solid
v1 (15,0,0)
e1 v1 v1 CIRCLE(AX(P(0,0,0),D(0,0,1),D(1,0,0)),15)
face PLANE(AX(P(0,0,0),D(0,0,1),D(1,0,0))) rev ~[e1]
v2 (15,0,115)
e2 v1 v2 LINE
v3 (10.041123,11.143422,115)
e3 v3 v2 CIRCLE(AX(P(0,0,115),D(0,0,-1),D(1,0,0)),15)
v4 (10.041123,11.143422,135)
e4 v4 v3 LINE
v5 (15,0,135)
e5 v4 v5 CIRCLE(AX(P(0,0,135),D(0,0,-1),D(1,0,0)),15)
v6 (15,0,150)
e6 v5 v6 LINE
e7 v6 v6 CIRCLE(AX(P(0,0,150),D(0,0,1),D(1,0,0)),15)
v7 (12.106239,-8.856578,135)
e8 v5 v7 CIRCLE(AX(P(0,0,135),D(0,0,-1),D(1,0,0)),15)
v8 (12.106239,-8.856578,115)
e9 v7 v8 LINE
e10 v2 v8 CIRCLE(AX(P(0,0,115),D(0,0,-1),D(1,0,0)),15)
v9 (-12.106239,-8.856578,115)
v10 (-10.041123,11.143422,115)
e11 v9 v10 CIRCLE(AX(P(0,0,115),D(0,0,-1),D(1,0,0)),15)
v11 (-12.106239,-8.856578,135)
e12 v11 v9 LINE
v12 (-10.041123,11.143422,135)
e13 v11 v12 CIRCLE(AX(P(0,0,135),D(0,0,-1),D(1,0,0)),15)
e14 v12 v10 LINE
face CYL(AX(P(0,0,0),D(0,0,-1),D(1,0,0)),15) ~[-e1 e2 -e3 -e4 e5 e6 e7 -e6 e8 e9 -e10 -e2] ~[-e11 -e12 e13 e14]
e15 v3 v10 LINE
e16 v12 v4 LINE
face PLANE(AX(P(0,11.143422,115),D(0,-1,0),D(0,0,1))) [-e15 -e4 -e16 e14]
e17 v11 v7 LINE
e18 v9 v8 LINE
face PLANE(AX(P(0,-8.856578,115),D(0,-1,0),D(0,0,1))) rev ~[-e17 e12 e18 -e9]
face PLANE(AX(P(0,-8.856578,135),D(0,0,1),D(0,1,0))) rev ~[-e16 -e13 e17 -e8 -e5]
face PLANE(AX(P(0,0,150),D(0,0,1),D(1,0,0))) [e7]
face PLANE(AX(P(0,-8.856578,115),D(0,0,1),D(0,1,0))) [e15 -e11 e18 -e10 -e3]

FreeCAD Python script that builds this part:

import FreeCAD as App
import Part
import Sketcher

V = App.Vector
Q = App.Units.Quantity

doc = App.newDocument("Part")
params = doc.addObject("Spreadsheet::Sheet", "Params")
for row, (alias, value) in enumerate([
    ("sketch1_diameter", "30 mm"),
    ("pad1_length", "150 mm"),
    ("sketch2_width", "20 mm"),
    ("pocket1_length", "25 mm"),
    ("sketch3_width", "20 mm"),
    ("pocket2_length", "25 mm"),
], start=1):
    params.set(f"A{row}", alias)
    params.set(f"B{row}", "=" + value)
    params.setAlias(f"B{row}", alias)

body = doc.addObject("PartDesign::Body", "Body")

# Sketch on XY plane
sketch1 = doc.addObject("Sketcher::SketchObject", "Sketch")
body.addObject(sketch1)
sketch1.AttachmentSupport = (doc.XY_Plane, [""])
sketch1.MapMode = "FlatFace"
sketch1.addGeometry(Part.Circle(V(0, 0, 0), V(0, 0, 1), 15), False)
sketch1.addConstraint([
    Sketcher.Constraint("Coincident", 0, 3, -1, 1),
    Sketcher.Constraint("Diameter", 0, Q("30 mm")),
])
sketch1.setExpression("Constraints[1]", "Params.sketch1_diameter")
pad1 = doc.addObject("PartDesign::Pad", "Pad")
body.addObject(pad1)
pad1.Profile = sketch1
pad1.setExpression("Length", "Params.pad1_length")

# Sketch on YZ plane
sketch2 = doc.addObject("Sketcher::SketchObject", "Sketch001")
body.addObject(sketch2)
sketch2.AttachmentSupport = (doc.YZ_Plane, [""])
sketch2.MapMode = "FlatFace"
sketch2.addGeometry([
    Part.LineSegment(V(-9, 135, 0), V(-9, 115, 0)),
    Part.LineSegment(V(-9, 115, 0), V(11, 115, 0)),
    Part.LineSegment(V(11, 115, 0), V(11, 135, 0)),
    Part.LineSegment(V(11, 135, 0), V(-9, 135, 0)),
], False)
sketch2.addConstraint([
    Sketcher.Constraint("Coincident", 0, 2, 1, 1),
    Sketcher.Constraint("Coincident", 1, 2, 2, 1),
    Sketcher.Constraint("Coincident", 2, 2, 3, 1),
    Sketcher.Constraint("Coincident", 3, 2, 0, 1),
    Sketcher.Constraint("Vertical", 0),
    Sketcher.Constraint("Horizontal", 1),
    Sketcher.Constraint("Vertical", 2),
    Sketcher.Constraint("Horizontal", 3),
    Sketcher.Constraint("Equal", 3, 0),
    Sketcher.Constraint("DistanceX", 1, 1, 1, 2, Q("20 mm")),
    Sketcher.Constraint("DistanceY", -1, 1, 0, 2, Q("115 mm")),
    Sketcher.Constraint("DistanceX", 0, 2, -1, 1, Q("8.856578 mm")),
])
sketch2.setExpression("Constraints[9]", "Params.sketch2_width")
pocket1 = doc.addObject("PartDesign::Pocket", "Pocket")
body.addObject(pocket1)
pocket1.Profile = sketch2
pocket1.setExpression("Length", "Params.pocket1_length")

# Sketch on YZ plane
sketch3 = doc.addObject("Sketcher::SketchObject", "Sketch002")
body.addObject(sketch3)
sketch3.AttachmentSupport = (doc.YZ_Plane, [""])
sketch3.MapMode = "FlatFace"
sketch3.addGeometry([
    Part.LineSegment(V(-9, 135, 0), V(-9, 115, 0)),
    Part.LineSegment(V(-9, 115, 0), V(11, 115, 0)),
    Part.LineSegment(V(11, 115, 0), V(11, 135, 0)),
    Part.LineSegment(V(11, 135, 0), V(-9, 135, 0)),
], False)
sketch3.addConstraint([
    Sketcher.Constraint("Coincident", 0, 2, 1, 1),
    Sketcher.Constraint("Coincident", 1, 2, 2, 1),
    Sketcher.Constraint("Coincident", 2, 2, 3, 1),
    Sketcher.Constraint("Coincident", 3, 2, 0, 1),
    Sketcher.Constraint("Vertical", 0),
    Sketcher.Constraint("Horizontal", 1),
    Sketcher.Constraint("Vertical", 2),
    Sketcher.Constraint("Horizontal", 3),
    Sketcher.Constraint("Equal", 3, 0),
    Sketcher.Constraint("DistanceX", 1, 1, 1, 2, Q("20 mm")),
    Sketcher.Constraint("DistanceY", -1, 1, 0, 2, Q("115 mm")),
    Sketcher.Constraint("DistanceX", 0, 2, -1, 1, Q("8.856578 mm")),
])
sketch3.setExpression("Constraints[9]", "Params.sketch3_width")
pocket2 = doc.addObject("PartDesign::Pocket", "Pocket001")
body.addObject(pocket2)
pocket2.Profile = sketch3
pocket2.setExpression("Length", "Params.pocket2_length")
pocket2.Reversed = True

doc.recompute()
